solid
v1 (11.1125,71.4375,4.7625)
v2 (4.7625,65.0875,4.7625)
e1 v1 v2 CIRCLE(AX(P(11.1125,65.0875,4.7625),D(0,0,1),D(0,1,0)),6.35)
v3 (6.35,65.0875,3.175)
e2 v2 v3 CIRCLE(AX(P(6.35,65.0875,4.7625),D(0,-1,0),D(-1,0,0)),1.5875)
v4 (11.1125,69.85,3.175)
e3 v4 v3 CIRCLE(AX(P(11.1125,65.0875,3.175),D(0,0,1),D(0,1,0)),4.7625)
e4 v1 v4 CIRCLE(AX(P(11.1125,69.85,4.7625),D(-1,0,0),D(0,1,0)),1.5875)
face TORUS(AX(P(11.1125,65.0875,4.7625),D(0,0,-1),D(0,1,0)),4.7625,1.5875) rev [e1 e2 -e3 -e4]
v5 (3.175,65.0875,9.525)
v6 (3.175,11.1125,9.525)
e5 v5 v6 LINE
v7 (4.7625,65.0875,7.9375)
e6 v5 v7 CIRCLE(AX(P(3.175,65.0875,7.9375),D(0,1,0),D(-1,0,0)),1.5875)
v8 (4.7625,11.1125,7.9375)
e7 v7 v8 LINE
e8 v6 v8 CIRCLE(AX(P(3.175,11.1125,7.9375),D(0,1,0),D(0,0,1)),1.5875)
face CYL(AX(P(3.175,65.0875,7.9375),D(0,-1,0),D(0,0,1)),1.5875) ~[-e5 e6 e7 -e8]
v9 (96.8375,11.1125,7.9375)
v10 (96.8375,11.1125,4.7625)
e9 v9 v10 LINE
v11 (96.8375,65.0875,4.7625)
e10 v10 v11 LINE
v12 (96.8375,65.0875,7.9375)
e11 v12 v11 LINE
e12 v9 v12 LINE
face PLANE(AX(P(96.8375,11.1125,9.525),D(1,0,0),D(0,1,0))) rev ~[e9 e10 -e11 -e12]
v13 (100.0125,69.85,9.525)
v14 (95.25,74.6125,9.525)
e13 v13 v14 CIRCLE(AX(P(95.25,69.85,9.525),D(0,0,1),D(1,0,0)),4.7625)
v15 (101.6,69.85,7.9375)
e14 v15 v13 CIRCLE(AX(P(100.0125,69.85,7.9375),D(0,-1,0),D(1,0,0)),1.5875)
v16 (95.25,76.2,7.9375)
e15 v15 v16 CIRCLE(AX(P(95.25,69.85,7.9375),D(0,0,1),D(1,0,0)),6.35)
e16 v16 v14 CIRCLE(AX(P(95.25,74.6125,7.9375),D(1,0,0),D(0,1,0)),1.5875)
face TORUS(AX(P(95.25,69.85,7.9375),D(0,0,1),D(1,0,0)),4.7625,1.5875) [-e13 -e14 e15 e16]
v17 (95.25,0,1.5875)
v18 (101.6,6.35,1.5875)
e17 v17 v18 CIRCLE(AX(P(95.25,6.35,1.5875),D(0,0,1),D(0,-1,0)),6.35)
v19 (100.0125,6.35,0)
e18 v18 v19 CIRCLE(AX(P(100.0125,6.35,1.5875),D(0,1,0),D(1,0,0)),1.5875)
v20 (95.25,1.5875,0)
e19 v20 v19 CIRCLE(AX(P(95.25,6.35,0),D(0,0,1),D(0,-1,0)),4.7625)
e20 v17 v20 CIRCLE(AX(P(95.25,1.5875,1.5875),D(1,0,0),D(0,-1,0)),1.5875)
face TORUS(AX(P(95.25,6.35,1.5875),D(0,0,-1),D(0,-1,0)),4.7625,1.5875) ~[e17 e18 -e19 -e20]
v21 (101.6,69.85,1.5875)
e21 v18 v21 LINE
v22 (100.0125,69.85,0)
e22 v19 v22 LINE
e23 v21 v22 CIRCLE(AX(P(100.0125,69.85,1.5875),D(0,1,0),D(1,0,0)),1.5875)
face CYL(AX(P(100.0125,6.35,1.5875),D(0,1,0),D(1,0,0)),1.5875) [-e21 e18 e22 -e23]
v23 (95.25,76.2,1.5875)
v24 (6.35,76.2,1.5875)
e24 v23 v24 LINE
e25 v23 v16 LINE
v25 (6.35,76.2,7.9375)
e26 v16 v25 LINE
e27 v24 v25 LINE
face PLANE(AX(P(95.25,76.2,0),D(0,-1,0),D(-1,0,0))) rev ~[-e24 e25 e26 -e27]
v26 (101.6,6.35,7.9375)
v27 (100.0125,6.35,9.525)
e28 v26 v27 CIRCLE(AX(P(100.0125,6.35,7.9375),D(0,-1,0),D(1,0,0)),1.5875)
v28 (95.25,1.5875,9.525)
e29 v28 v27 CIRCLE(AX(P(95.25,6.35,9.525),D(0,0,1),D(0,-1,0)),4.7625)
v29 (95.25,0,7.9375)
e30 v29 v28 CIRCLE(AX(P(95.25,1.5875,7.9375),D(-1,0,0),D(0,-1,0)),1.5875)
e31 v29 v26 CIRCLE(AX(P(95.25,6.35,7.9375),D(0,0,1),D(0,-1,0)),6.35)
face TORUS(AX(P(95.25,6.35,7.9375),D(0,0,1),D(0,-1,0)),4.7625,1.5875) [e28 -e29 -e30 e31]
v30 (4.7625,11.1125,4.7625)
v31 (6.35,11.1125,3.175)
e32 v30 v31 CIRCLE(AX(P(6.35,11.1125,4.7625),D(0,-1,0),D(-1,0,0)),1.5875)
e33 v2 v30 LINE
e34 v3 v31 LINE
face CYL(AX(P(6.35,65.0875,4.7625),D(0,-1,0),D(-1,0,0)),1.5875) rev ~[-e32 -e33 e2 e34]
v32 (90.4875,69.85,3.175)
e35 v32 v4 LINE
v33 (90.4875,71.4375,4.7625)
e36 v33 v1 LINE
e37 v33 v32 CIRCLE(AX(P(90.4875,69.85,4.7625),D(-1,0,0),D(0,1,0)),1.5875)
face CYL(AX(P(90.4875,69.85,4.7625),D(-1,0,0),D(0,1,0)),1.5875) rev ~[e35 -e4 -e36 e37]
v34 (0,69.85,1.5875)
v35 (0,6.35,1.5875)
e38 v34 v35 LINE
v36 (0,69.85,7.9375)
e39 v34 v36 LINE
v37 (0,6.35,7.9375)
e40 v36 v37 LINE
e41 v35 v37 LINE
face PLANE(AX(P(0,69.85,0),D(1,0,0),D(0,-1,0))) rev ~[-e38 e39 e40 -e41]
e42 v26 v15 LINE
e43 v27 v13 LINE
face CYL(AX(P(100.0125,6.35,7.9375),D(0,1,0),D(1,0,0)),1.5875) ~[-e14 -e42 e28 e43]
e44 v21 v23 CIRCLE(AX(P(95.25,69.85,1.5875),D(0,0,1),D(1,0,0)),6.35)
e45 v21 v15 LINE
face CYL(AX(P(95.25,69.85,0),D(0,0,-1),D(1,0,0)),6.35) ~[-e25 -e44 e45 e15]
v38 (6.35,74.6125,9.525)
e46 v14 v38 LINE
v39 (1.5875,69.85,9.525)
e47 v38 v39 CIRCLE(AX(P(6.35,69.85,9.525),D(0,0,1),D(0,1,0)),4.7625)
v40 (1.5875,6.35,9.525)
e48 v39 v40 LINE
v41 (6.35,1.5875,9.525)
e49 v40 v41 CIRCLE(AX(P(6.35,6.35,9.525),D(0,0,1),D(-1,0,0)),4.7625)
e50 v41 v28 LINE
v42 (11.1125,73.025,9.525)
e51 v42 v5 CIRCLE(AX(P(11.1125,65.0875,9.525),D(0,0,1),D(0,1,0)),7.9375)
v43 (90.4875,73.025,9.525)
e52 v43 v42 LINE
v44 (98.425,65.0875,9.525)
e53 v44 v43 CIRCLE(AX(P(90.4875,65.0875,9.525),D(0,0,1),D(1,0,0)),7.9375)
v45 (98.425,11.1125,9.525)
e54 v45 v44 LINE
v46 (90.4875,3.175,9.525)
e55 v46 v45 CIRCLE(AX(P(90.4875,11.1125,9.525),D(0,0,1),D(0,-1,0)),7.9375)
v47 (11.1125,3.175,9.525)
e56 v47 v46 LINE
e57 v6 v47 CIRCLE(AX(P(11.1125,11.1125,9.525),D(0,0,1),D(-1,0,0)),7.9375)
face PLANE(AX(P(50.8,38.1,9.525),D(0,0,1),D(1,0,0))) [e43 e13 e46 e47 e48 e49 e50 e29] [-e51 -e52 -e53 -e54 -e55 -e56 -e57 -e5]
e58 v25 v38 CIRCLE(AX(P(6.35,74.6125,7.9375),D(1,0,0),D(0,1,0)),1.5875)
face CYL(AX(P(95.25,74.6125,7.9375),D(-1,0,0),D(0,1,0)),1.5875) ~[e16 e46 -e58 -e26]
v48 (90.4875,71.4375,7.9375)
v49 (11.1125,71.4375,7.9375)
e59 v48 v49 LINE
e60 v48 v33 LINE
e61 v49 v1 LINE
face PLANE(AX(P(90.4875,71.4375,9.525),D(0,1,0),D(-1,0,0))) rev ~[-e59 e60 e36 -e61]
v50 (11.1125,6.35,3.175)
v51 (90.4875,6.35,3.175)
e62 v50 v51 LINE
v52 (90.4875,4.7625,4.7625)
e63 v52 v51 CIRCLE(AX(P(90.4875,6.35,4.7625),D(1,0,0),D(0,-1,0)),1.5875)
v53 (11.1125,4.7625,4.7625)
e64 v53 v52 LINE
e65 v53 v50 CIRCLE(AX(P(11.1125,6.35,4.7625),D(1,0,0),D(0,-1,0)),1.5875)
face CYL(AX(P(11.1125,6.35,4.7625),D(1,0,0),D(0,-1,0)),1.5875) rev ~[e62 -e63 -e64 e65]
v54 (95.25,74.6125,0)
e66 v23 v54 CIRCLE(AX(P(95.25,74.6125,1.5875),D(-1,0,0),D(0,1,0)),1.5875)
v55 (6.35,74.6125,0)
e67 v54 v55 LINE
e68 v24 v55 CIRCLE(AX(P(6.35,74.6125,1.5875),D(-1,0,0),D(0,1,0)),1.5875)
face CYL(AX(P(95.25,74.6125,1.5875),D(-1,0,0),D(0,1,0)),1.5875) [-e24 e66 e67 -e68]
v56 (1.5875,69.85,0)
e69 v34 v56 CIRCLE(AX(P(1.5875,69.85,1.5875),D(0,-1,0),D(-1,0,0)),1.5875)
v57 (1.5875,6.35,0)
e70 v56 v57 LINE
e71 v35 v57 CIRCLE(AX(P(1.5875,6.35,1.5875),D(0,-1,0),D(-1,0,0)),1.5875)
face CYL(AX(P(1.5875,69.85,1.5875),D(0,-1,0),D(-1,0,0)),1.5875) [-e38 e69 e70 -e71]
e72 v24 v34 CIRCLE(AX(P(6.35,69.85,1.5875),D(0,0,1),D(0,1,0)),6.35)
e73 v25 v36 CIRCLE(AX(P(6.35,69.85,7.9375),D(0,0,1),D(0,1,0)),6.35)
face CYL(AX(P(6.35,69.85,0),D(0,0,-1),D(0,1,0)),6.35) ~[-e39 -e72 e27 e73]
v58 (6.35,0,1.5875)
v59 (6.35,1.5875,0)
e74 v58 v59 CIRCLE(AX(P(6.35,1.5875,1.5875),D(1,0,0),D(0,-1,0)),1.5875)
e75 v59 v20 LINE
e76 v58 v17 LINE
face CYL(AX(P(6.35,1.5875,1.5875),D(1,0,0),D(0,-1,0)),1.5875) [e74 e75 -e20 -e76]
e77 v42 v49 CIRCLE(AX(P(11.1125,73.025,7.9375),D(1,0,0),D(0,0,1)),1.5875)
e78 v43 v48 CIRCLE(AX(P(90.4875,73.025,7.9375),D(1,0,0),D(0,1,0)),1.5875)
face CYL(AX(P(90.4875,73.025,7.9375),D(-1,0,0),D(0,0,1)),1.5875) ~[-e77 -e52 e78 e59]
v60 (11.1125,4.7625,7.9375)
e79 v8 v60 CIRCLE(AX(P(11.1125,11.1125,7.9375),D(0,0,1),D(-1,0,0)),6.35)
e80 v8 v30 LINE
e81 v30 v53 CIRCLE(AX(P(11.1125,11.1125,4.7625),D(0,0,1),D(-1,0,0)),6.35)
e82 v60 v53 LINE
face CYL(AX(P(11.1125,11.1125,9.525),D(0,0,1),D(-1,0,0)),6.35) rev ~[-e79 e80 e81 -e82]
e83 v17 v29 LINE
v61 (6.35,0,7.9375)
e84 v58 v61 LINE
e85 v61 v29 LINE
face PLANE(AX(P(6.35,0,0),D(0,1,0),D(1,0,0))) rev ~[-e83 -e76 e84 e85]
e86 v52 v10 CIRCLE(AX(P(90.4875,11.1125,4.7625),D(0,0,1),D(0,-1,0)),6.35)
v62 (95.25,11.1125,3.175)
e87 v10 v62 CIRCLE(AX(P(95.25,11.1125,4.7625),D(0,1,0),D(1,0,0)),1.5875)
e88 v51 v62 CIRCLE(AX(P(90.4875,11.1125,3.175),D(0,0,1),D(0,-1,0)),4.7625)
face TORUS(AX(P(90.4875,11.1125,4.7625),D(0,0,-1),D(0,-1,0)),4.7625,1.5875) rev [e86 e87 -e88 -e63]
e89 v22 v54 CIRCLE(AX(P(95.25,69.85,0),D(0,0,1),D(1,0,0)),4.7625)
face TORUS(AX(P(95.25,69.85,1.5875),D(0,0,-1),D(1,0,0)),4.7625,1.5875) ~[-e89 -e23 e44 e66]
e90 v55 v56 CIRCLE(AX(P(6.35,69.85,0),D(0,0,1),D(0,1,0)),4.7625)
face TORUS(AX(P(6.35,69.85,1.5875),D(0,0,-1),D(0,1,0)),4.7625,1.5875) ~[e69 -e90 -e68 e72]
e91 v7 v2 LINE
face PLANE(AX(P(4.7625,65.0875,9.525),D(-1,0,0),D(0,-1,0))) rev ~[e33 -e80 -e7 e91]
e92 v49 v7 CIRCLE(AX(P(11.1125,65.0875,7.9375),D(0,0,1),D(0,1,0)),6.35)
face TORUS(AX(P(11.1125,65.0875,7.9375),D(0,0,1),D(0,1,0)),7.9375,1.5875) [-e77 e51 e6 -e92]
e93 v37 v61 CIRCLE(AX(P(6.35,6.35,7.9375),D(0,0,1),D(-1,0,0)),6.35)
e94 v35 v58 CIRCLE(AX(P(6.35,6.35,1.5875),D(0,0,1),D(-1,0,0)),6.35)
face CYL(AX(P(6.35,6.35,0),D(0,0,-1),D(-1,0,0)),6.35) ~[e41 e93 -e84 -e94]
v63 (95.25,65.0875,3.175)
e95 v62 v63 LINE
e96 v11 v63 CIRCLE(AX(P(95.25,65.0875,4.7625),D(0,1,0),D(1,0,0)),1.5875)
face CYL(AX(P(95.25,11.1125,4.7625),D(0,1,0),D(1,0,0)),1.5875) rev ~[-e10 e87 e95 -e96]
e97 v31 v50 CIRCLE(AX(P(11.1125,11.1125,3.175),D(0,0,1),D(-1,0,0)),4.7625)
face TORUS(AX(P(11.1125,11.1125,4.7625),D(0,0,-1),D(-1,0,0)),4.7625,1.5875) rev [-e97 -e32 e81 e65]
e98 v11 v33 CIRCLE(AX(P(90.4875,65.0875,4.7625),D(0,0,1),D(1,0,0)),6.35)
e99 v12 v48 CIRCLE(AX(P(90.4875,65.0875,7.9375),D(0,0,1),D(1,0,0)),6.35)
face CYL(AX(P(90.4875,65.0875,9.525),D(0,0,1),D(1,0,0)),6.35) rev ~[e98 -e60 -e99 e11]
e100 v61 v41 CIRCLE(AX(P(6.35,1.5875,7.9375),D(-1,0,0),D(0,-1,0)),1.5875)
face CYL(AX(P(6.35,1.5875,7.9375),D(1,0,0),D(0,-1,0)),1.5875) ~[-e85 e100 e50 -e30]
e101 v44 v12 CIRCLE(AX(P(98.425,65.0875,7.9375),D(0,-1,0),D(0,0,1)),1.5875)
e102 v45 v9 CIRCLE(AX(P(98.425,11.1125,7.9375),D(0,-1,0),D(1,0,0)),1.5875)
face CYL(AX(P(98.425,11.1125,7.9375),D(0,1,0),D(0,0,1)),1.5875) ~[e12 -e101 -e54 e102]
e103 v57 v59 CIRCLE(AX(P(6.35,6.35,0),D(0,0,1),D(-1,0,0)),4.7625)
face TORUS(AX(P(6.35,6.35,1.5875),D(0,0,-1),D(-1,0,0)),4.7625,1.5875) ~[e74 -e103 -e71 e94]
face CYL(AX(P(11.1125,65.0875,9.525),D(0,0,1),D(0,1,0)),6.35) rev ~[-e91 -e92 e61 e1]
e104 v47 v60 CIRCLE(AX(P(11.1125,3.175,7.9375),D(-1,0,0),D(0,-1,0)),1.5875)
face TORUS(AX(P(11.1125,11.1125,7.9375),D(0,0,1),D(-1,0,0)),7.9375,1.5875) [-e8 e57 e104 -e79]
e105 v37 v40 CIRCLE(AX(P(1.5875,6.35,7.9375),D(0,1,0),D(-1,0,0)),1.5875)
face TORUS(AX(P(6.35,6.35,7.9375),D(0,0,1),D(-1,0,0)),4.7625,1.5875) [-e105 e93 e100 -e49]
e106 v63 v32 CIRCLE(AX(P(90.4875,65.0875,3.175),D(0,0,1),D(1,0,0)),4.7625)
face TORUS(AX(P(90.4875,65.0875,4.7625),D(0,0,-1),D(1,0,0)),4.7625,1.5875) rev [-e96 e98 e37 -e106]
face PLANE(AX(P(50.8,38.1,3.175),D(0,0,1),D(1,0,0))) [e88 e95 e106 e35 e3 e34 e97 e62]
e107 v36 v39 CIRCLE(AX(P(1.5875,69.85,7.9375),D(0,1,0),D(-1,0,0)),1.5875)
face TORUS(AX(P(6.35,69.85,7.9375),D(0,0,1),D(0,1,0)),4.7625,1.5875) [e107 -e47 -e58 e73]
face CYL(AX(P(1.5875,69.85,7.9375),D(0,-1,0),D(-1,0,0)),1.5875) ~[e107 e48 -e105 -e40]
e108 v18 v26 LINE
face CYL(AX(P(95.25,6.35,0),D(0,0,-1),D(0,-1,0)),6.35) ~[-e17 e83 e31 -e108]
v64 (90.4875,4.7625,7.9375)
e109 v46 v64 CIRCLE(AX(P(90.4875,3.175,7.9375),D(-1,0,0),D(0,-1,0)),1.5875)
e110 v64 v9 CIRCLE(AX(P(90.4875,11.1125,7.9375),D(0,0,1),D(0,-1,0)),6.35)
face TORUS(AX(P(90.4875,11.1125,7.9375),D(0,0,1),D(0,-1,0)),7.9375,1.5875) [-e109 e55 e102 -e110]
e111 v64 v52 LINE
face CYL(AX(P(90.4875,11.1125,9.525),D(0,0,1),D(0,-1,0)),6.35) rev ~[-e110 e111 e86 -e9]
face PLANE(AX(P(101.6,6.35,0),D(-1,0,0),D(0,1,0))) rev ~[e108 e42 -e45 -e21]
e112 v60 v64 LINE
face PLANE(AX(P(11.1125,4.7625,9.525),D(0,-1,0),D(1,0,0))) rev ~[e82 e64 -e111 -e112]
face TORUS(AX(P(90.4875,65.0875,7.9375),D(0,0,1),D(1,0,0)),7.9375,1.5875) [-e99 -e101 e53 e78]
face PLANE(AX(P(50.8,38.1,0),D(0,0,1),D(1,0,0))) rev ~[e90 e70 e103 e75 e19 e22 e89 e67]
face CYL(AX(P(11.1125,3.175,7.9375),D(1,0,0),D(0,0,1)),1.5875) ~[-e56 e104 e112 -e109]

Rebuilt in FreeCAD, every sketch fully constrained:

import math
import FreeCAD as App
import Part
import Sketcher

V = App.Vector
Q = App.Units.Quantity


def edges_at(feature, points):
    """Names of the edges that pass closest to the given points."""
    edges = feature.Shape.Edges
    near = lambda p: min(range(len(edges)), key=lambda i: edges[i].distToShape(Part.Vertex(*p))[0])
    return sorted({f"Edge{near(p) + 1}" for p in points})

doc = App.newDocument("Part")
body = doc.addObject("PartDesign::Body", "Body")

# Sketch on XY plane
sketch1 = body.newObject("Sketcher::SketchObject", "Sketch")
sketch1.AttachmentSupport = (doc.getObject("XY_Plane"), [""])
sketch1.MapMode = "FlatFace"
sketch1.addGeometry(Part.ArcOfCircle(Part.Circle(V(6, 6, 0), V(0, 0, 1), 6), math.radians(180), math.radians(270)), False)
sketch1.addGeometry(Part.LineSegment(V(6, 0, 0), V(95, 0, 0)), False)
sketch1.addGeometry(Part.ArcOfCircle(Part.Circle(V(95, 6, 0), V(0, 0, 1), 6), math.radians(-90), math.radians(0)), False)
sketch1.addGeometry(Part.LineSegment(V(102, 6, 0), V(102, 70, 0)), False)
sketch1.addGeometry(Part.ArcOfCircle(Part.Circle(V(95, 70, 0), V(0, 0, 1), 6), math.radians(0), math.radians(90)), False)
sketch1.addGeometry(Part.LineSegment(V(95, 76, 0), V(6, 76, 0)), False)
sketch1.addGeometry(Part.ArcOfCircle(Part.Circle(V(6, 70, 0), V(0, 0, 1), 6), math.radians(90), math.radians(180)), False)
sketch1.addGeometry(Part.LineSegment(V(0, 70, 0), V(0, 6, 0)), False)
sketch1.addConstraint(Sketcher.Constraint("Tangent", 0, 2, 1, 1))
sketch1.addConstraint(Sketcher.Constraint("Tangent", 1, 2, 2, 1))
sketch1.addConstraint(Sketcher.Constraint("Tangent", 2, 2, 3, 1))
sketch1.addConstraint(Sketcher.Constraint("Tangent", 3, 2, 4, 1))
sketch1.addConstraint(Sketcher.Constraint("Tangent", 4, 2, 5, 1))
sketch1.addConstraint(Sketcher.Constraint("Tangent", 5, 2, 6, 1))
sketch1.addConstraint(Sketcher.Constraint("Tangent", 6, 2, 7, 1))
sketch1.addConstraint(Sketcher.Constraint("Tangent", 7, 2, 0, 1))
sketch1.addConstraint(Sketcher.Constraint("Horizontal", 1))
sketch1.addConstraint(Sketcher.Constraint("Vertical", 3))
sketch1.addConstraint(Sketcher.Constraint("Horizontal", 5))
sketch1.addConstraint(Sketcher.Constraint("Vertical", 7))
sketch1.addConstraint(Sketcher.Constraint("Equal", 0, 2))
sketch1.addConstraint(Sketcher.Constraint("Equal", 2, 4))
sketch1.addConstraint(Sketcher.Constraint("Equal", 4, 6))
sketch1.addConstraint(Sketcher.Constraint("PointOnObject", 0, 2, -1))
sketch1.addConstraint(Sketcher.Constraint("PointOnObject", 6, 2, -2))
sketch1.addConstraint(Sketcher.Constraint("Radius", 0, Q("0.25 in")))
sketch1.addConstraint(Sketcher.Constraint("DistanceX", 1, 1, 1, 2, Q("3.5 in")))
sketch1.addConstraint(Sketcher.Constraint("DistanceY", 3, 1, 3, 2, Q("2.5 in")))
pad1 = body.newObject("PartDesign::Pad", "Pad")
pad1.Profile = sketch1
pad1.Length = Q("0.375 in")

# Sketch on XY plane
sketch2 = body.newObject("Sketcher::SketchObject", "Sketch001")
sketch2.AttachmentSupport = (doc.getObject("XY_Plane"), [""])
sketch2.MapMode = "FlatFace"
sketch2.AttachmentOffset = App.Placement(V(0, 0, 0.375 * 25.4), App.Rotation())
sketch2.addGeometry(Part.ArcOfCircle(Part.Circle(V(90, 65, 0), V(0, 0, 1), 6), math.radians(0), math.radians(90)), False)
sketch2.addGeometry(Part.LineSegment(V(90, 71, 0), V(11, 71, 0)), False)
sketch2.addGeometry(Part.ArcOfCircle(Part.Circle(V(11, 65, 0), V(0, 0, 1), 6), math.radians(90), math.radians(180)), False)
sketch2.addGeometry(Part.LineSegment(V(5, 65, 0), V(5, 11, 0)), False)
sketch2.addGeometry(Part.ArcOfCircle(Part.Circle(V(11, 11, 0), V(0, 0, 1), 6), math.radians(180), math.radians(270)), False)
sketch2.addGeometry(Part.LineSegment(V(11, 5, 0), V(90, 5, 0)), False)
sketch2.addGeometry(Part.ArcOfCircle(Part.Circle(V(90, 11, 0), V(0, 0, 1), 6), math.radians(-90), math.radians(0)), False)
sketch2.addGeometry(Part.LineSegment(V(97, 11, 0), V(97, 65, 0)), False)
sketch2.addConstraint(Sketcher.Constraint("Tangent", 0, 2, 1, 1))
sketch2.addConstraint(Sketcher.Constraint("Tangent", 1, 2, 2, 1))
sketch2.addConstraint(Sketcher.Constraint("Tangent", 2, 2, 3, 1))
sketch2.addConstraint(Sketcher.Constraint("Tangent", 3, 2, 4, 1))
sketch2.addConstraint(Sketcher.Constraint("Tangent", 4, 2, 5, 1))
sketch2.addConstraint(Sketcher.Constraint("Tangent", 5, 2, 6, 1))
sketch2.addConstraint(Sketcher.Constraint("Tangent", 6, 2, 7, 1))
sketch2.addConstraint(Sketcher.Constraint("Tangent", 7, 2, 0, 1))
sketch2.addConstraint(Sketcher.Constraint("Horizontal", 1))
sketch2.addConstraint(Sketcher.Constraint("Vertical", 3))
sketch2.addConstraint(Sketcher.Constraint("Horizontal", 5))
sketch2.addConstraint(Sketcher.Constraint("Vertical", 7))
sketch2.addConstraint(Sketcher.Constraint("Equal", 0, 2))
sketch2.addConstraint(Sketcher.Constraint("Equal", 2, 4))
sketch2.addConstraint(Sketcher.Constraint("Equal", 4, 6))
sketch2.addConstraint(Sketcher.Constraint("Radius", 0, Q("0.25 in")))
sketch2.addConstraint(Sketcher.Constraint("DistanceX", 1, 2, 1, 1, Q("3.125 in")))
sketch2.addConstraint(Sketcher.Constraint("DistanceY", 3, 2, 3, 1, Q("2.125 in")))
sketch2.addConstraint(Sketcher.Constraint("DistanceX", -1, 1, 0, 3, Q("3.5625 in")))
sketch2.addConstraint(Sketcher.Constraint("DistanceY", -1, 1, 0, 3, Q("2.5625 in")))
pocket1 = body.newObject("PartDesign::Pocket", "Pocket")
pocket1.Profile = sketch2
pocket1.Length = Q("0.25 in")
doc.recompute()

fillet = body.newObject("PartDesign::Fillet", "Fillet")
fillet.Base = (pocket1, edges_at(pocket1, [
    (0, 38.1, 9.525),
    (1.86, 74.34, 9.525),
    (1.86, 1.86, 9.525),
    (50.8, 76.2, 9.525),
    (50.8, 0, 9.525),
    (99.74, 74.34, 9.525),
    (99.74, 1.86, 9.525),
    (101.6, 38.1, 9.525),
    (94.978, 6.622, 9.525),
    (96.838, 38.1, 9.525),
    (94.978, 69.578, 9.525),
    (50.8, 71.438, 9.525),
    (6.622, 69.578, 9.525),
    (4.763, 38.1, 9.525),
    (6.622, 6.622, 9.525),
    (50.8, 4.763, 9.525),
    (0, 38.1, 0),
    (1.86, 1.86, 0),
    (50.8, 0, 0),
    (99.74, 1.86, 0),
    (101.6, 38.1, 0),
    (99.74, 74.34, 0),
    (50.8, 76.2, 0),
    (1.86, 74.34, 0),
]))
fillet.Radius = Q("0.0625 in")
doc.recompute()

fillet2 = body.newObject("PartDesign::Fillet", "Fillet001")
fillet2.Base = (fillet, edges_at(fillet, [
    (94.978, 6.622, 3.175),
    (96.838, 38.1, 3.175),
    (94.978, 69.578, 3.175),
    (50.8, 71.438, 3.175),
    (6.622, 69.578, 3.175),
    (4.763, 38.1, 3.175),
    (6.622, 6.622, 3.175),
    (50.8, 4.763, 3.175),
]))
fillet2.Radius = Q("0.0625 in")

doc.recompute()
